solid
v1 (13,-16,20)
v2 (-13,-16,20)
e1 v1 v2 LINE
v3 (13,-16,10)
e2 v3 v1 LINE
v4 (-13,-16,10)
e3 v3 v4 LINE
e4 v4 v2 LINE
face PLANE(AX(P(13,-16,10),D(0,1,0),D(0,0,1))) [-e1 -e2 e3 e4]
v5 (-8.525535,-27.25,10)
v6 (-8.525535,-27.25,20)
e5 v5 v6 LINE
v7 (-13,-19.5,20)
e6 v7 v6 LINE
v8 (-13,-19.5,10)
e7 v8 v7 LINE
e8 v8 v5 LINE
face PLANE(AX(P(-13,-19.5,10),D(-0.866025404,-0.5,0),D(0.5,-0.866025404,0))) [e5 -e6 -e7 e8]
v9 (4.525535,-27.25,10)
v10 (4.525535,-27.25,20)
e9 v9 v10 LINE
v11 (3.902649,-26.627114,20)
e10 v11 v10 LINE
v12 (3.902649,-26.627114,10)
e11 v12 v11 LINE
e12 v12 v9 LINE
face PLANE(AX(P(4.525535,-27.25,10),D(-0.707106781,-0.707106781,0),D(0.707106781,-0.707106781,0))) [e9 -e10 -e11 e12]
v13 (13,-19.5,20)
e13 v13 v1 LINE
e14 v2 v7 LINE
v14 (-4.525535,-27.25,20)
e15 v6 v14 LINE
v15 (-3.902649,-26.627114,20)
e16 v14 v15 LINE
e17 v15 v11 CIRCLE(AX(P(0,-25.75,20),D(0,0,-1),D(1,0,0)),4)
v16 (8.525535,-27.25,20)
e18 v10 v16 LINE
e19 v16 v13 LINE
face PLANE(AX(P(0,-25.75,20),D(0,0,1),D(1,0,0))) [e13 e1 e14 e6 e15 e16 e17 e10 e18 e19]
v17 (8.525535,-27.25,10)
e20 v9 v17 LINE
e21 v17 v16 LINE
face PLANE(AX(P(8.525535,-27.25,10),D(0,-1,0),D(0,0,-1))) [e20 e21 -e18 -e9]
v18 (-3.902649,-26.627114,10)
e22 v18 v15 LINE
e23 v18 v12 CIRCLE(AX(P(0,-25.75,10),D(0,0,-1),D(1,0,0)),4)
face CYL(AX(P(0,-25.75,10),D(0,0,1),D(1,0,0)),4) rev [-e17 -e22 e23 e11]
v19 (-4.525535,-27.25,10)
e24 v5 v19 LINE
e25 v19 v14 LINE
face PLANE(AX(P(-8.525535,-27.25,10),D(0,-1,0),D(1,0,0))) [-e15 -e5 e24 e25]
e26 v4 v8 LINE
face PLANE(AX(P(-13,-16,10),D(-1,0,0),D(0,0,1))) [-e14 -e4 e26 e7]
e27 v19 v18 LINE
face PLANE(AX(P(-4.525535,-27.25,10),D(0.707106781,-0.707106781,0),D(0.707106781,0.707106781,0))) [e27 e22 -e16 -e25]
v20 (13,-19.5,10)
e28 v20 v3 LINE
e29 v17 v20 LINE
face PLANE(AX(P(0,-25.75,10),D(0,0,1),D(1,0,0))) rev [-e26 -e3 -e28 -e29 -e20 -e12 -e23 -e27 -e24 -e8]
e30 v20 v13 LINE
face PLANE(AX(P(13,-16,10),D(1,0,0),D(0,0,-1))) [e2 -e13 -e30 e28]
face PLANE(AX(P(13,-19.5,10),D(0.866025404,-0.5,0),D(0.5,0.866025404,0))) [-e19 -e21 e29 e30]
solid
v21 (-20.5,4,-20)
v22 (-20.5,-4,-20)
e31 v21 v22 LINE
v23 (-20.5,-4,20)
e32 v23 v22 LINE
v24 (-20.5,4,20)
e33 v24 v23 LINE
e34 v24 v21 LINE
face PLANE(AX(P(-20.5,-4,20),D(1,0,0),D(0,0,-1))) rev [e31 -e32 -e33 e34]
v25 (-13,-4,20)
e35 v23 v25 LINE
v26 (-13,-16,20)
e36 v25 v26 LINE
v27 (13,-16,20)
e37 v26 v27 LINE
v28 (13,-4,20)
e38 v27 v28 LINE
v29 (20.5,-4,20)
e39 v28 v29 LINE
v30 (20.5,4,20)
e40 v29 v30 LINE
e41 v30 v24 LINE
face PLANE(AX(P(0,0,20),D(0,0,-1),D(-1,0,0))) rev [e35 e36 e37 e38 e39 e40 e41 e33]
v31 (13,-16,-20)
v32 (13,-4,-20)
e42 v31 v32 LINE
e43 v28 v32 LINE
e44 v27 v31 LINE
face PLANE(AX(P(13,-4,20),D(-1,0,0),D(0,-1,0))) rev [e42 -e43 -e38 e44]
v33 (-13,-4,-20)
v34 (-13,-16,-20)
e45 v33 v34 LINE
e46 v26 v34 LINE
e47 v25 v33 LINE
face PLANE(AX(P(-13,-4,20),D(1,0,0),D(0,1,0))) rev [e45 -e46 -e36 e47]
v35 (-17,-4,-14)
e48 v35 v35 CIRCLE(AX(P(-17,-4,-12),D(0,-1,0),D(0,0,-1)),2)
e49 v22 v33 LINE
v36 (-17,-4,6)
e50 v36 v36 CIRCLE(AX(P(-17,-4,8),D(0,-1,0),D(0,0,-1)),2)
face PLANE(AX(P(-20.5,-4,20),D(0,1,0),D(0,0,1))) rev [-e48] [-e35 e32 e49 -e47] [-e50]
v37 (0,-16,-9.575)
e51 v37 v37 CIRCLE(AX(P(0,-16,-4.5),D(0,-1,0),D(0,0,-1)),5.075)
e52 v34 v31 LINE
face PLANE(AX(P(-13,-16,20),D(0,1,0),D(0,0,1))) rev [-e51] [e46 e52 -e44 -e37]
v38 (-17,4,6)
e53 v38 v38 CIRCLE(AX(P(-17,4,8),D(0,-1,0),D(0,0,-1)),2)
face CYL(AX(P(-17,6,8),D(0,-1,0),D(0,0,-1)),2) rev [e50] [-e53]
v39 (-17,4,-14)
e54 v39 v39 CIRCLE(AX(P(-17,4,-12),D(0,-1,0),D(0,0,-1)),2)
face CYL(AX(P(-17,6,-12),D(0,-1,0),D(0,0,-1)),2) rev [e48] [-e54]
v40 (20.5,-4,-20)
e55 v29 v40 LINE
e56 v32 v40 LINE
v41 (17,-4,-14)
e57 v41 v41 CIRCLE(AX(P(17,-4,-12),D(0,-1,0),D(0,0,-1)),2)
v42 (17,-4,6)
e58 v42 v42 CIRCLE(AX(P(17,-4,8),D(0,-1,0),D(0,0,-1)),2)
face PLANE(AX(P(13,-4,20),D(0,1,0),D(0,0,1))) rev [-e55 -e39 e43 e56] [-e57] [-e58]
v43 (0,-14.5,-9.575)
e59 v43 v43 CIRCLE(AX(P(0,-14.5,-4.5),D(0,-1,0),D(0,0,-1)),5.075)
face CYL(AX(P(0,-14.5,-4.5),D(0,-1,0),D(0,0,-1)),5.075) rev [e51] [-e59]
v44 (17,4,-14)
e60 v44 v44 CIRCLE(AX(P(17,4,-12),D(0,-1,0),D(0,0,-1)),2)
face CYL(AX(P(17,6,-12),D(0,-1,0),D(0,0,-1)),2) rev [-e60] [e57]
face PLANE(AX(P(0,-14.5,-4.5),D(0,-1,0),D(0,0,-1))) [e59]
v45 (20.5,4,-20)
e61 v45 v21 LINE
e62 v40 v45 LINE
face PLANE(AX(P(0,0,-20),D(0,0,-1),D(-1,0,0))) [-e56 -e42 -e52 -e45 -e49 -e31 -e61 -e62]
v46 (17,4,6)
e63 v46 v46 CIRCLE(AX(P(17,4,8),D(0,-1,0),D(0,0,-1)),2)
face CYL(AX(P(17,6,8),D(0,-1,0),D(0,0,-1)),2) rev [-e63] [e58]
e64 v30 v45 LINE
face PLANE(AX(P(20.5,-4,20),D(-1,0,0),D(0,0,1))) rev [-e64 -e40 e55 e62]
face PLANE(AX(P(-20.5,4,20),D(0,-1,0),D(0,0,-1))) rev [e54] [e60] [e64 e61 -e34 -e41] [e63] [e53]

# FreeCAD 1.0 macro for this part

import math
import FreeCAD as App
import Part
import Sketcher
from FreeCAD import Vector
Q = App.Units.Quantity


def add_polygon(sketch, points):
    """Adds a closed chain of lines whose ends are joined by coincident constraints."""
    first, n = sketch.GeometryCount, len(points)
    for a, b in zip(points, points[1:] + points[:1]):
        sketch.addGeometry(Part.LineSegment(App.Vector(*a, 0), App.Vector(*b, 0)), False)
    for i in range(n):
        sketch.addConstraint(Sketcher.Constraint("Coincident", first + i, 2, first + (i + 1) % n, 1))

doc = App.newDocument("Part")
params = doc.addObject("Spreadsheet::Sheet", "Params")
for row, (alias, value) in enumerate([
    ("sketch1_width", "41 mm"),
    ("sketch1_width2", "26 mm"),
    ("sketch1_height", "8 mm"),
    ("sketch1_height2", "12 mm"),
    ("pad1_length", "40 mm"),
    ("sketch2_diameter", "4 mm"),
    ("pocket1_length", "10 mm"),
    ("sketch3_diameter", "10.15 mm"),
    ("pocket2_length", "1.5 mm"),
    ("sketch4_radius", "4 mm"),
    ("sketch4_width", "26 mm"),
    ("sketch4_width2", "4 mm"),
    ("sketch4_height", "3.5 mm"),
    ("pad2_length", "10 mm"),
], start=1):
    params.set(f"A{row}", alias)
    params.set(f"B{row}", "=" + value)
    params.setAlias(f"B{row}", alias)

body = doc.addObject("PartDesign::Body", "Body")

# Sketch on XY plane
sketch1 = body.newObject("Sketcher::SketchObject", "Sketch")
sketch1.AttachmentSupport = (doc.getObject("XY_Plane"), [""])
sketch1.MapMode = "FlatFace"
add_polygon(sketch1, [(13, -4), (20, -4), (20, 4), (-20, 4), (-20, -4), (-13, -4), (-13, -16), (13, -16)])  # lines 0-7
sketch1.addConstraint(Sketcher.Constraint("Horizontal", 0))
sketch1.addConstraint(Sketcher.Constraint("Vertical", 1))
sketch1.addConstraint(Sketcher.Constraint("Horizontal", 2))
sketch1.addConstraint(Sketcher.Constraint("Vertical", 3))
sketch1.addConstraint(Sketcher.Constraint("Horizontal", 4))
sketch1.addConstraint(Sketcher.Constraint("Vertical", 5))
sketch1.addConstraint(Sketcher.Constraint("Horizontal", 6))
sketch1.addConstraint(Sketcher.Constraint("Vertical", 7))
sketch1.addConstraint(Sketcher.Constraint("Symmetric", 0, 2, 2, 2, -1, 1))
sketch1.addConstraint(Sketcher.Constraint("Symmetric", 4, 2, 7, 2, -2))
sketch1.addConstraint(Sketcher.Constraint("DistanceX", 2, 2, 2, 1, Q("41 mm")))
sketch1.addConstraint(Sketcher.Constraint("DistanceX", 6, 1, 6, 2, Q("26 mm")))
sketch1.addConstraint(Sketcher.Constraint("DistanceY", 1, 1, 1, 2, Q("8 mm")))
sketch1.addConstraint(Sketcher.Constraint("DistanceY", 5, 2, 5, 1, Q("12 mm")))
sketch1.setExpression("Constraints[18]", "Params.sketch1_width")
sketch1.setExpression("Constraints[19]", "Params.sketch1_width2")
sketch1.setExpression("Constraints[20]", "Params.sketch1_height")
sketch1.setExpression("Constraints[21]", "Params.sketch1_height2")
pad1 = body.newObject("PartDesign::Pad", "Pad")
pad1.Profile = sketch1
pad1.setExpression("Length", "Params.pad1_length")
pad1.Midplane = True

# Sketch on XZ plane
sketch2 = body.newObject("Sketcher::SketchObject", "Sketch001")
sketch2.AttachmentSupport = (doc.getObject("XZ_Plane"), [""])
sketch2.MapMode = "FlatFace"
sketch2.AttachmentOffset = App.Placement(Vector(0, 0, 4), App.Rotation())
sketch2.addGeometry(Part.Circle(Vector(-17, -12, 0), Vector(0, 0, 1), 2), False)
sketch2.addGeometry(Part.Circle(Vector(-17, 8, 0), Vector(0, 0, 1), 2), False)
sketch2.addGeometry(Part.Circle(Vector(17, -12, 0), Vector(0, 0, 1), 2), False)
sketch2.addGeometry(Part.Circle(Vector(17, 8, 0), Vector(0, 0, 1), 2), False)
sketch2.addConstraint(Sketcher.Constraint("Equal", 0, 1))
sketch2.addConstraint(Sketcher.Constraint("Equal", 1, 2))
sketch2.addConstraint(Sketcher.Constraint("Equal", 2, 3))
sketch2.addConstraint(Sketcher.Constraint("Symmetric", 0, 3, 2, 3, -2))
sketch2.addConstraint(Sketcher.Constraint("Symmetric", 1, 3, 3, 3, -2))
sketch2.addConstraint(Sketcher.Constraint("Vertical", 0, 3, 1, 3))
sketch2.addConstraint(Sketcher.Constraint("Diameter", 0, Q("4 mm")))
sketch2.addConstraint(Sketcher.Constraint("DistanceX", 0, 3, -1, 1, Q("17 mm")))
sketch2.addConstraint(Sketcher.Constraint("DistanceY", 0, 3, -1, 1, Q("12 mm")))
sketch2.addConstraint(Sketcher.Constraint("DistanceY", -1, 1, 1, 3, Q("8 mm")))
sketch2.setExpression("Constraints[6]", "Params.sketch2_diameter")
pocket1 = body.newObject("PartDesign::Pocket", "Pocket")
pocket1.Profile = sketch2
pocket1.setExpression("Length", "Params.pocket1_length")

# Sketch on XZ plane
sketch3 = body.newObject("Sketcher::SketchObject", "Sketch002")
sketch3.AttachmentSupport = (doc.getObject("XZ_Plane"), [""])
sketch3.MapMode = "FlatFace"
sketch3.AttachmentOffset = App.Placement(Vector(0, 0, 16), App.Rotation())
sketch3.addGeometry(Part.Circle(Vector(0, -4, 0), Vector(0, 0, 1), 5), False)
sketch3.addConstraint(Sketcher.Constraint("PointOnObject", 0, 3, -2))
sketch3.addConstraint(Sketcher.Constraint("Diameter", 0, Q("10.15 mm")))
sketch3.addConstraint(Sketcher.Constraint("DistanceY", 0, 3, -1, 1, Q("4.5 mm")))
sketch3.setExpression("Constraints[1]", "Params.sketch3_diameter")
pocket2 = body.newObject("PartDesign::Pocket", "Pocket001")
pocket2.Profile = sketch3
pocket2.setExpression("Length", "Params.pocket2_length")
body2 = doc.addObject("PartDesign::Body", "Body001")

# Sketch on XY plane
sketch4 = body2.newObject("Sketcher::SketchObject", "Sketch003")
sketch4.AttachmentSupport = (doc.getObject("XY_Plane001"), [""])
sketch4.MapMode = "FlatFace"
sketch4.AttachmentOffset = App.Placement(Vector(0, 0, 20), App.Rotation())
sketch4.addGeometry(Part.LineSegment(Vector(13, -16, 0), Vector(-13, -16, 0)), False)
sketch4.addGeometry(Part.LineSegment(Vector(-13, -16, 0), Vector(-13, -19.5, 0)), False)
sketch4.addGeometry(Part.LineSegment(Vector(-13, -19.5, 0), Vector(-8.5, -27.2, 0)), False)
sketch4.addGeometry(Part.LineSegment(Vector(-8.5, -27.2, 0), Vector(-4.5, -27.2, 0)), False)
sketch4.addGeometry(Part.LineSegment(Vector(-4.5, -27.2, 0), Vector(-3.9, -26.6, 0)), False)
sketch4.addGeometry(Part.ArcOfCircle(Part.Circle(Vector(0, -25.8, 0), Vector(0, 0, 1), 4), math.radians(-13), math.radians(193)), False)
sketch4.addGeometry(Part.LineSegment(Vector(3.9, -26.6, 0), Vector(4.5, -27.2, 0)), False)
sketch4.addGeometry(Part.LineSegment(Vector(4.5, -27.2, 0), Vector(8.5, -27.2, 0)), False)
sketch4.addGeometry(Part.LineSegment(Vector(8.5, -27.2, 0), Vector(13, -19.5, 0)), False)
sketch4.addGeometry(Part.LineSegment(Vector(13, -19.5, 0), Vector(13, -16, 0)), False)
sketch4.addConstraint(Sketcher.Constraint("Coincident", 0, 2, 1, 1))
sketch4.addConstraint(Sketcher.Constraint("Coincident", 1, 2, 2, 1))
sketch4.addConstraint(Sketcher.Constraint("Coincident", 2, 2, 3, 1))
sketch4.addConstraint(Sketcher.Constraint("Coincident", 3, 2, 4, 1))
sketch4.addConstraint(Sketcher.Constraint("Coincident", 4, 2, 5, 2))
sketch4.addConstraint(Sketcher.Constraint("Coincident", 5, 1, 6, 1))
sketch4.addConstraint(Sketcher.Constraint("Coincident", 6, 2, 7, 1))
sketch4.addConstraint(Sketcher.Constraint("Coincident", 7, 2, 8, 1))
sketch4.addConstraint(Sketcher.Constraint("Coincident", 8, 2, 9, 1))
sketch4.addConstraint(Sketcher.Constraint("Coincident", 9, 2, 0, 1))
sketch4.addConstraint(Sketcher.Constraint("Horizontal", 0))
sketch4.addConstraint(Sketcher.Constraint("Vertical", 1))
sketch4.addConstraint(Sketcher.Constraint("Horizontal", 3))
sketch4.addConstraint(Sketcher.Constraint("Horizontal", 7))
sketch4.addConstraint(Sketcher.Constraint("Vertical", 9))
sketch4.addConstraint(Sketcher.Constraint("Symmetric", 4, 2, 5, 1, -2))
sketch4.addConstraint(Sketcher.Constraint("Symmetric", 3, 2, 6, 2, -2))
sketch4.addConstraint(Sketcher.Constraint("Symmetric", 1, 2, 8, 2, -2))
sketch4.addConstraint(Sketcher.Constraint("Perpendicular", 4, 6))
sketch4.addConstraint(Sketcher.Constraint("Equal", 3, 7))
sketch4.addConstraint(Sketcher.Constraint("Radius", 5, Q("4 mm")))
sketch4.addConstraint(Sketcher.Constraint("DistanceX", 0, 2, 0, 1, Q("26 mm")))
sketch4.addConstraint(Sketcher.Constraint("DistanceX", 3, 1, 3, 2, Q("4 mm")))
sketch4.addConstraint(Sketcher.Constraint("Angle", 2, Q("-60 deg")))
sketch4.addConstraint(Sketcher.Constraint("DistanceY", 1, 2, 1, 1, Q("3.5 mm")))
sketch4.addConstraint(Sketcher.Constraint("DistanceY", 0, 2, -1, 1, Q("16 mm")))
sketch4.addConstraint(Sketcher.Constraint("DistanceY", 2, 2, 5, 3, Q("1.5 mm")))
sketch4.addConstraint(Sketcher.Constraint("DistanceY", 5, 3, -1, 1, Q("25.75 mm")))
sketch4.setExpression("Constraints[20]", "Params.sketch4_radius")
sketch4.setExpression("Constraints[21]", "Params.sketch4_width")
sketch4.setExpression("Constraints[22]", "Params.sketch4_width2")
sketch4.setExpression("Constraints[24]", "Params.sketch4_height")
pad2 = body2.newObject("PartDesign::Pad", "Pad001")
pad2.Profile = sketch4
pad2.setExpression("Length", "Params.pad2_length")
pad2.Reversed = True

doc.recompute()
